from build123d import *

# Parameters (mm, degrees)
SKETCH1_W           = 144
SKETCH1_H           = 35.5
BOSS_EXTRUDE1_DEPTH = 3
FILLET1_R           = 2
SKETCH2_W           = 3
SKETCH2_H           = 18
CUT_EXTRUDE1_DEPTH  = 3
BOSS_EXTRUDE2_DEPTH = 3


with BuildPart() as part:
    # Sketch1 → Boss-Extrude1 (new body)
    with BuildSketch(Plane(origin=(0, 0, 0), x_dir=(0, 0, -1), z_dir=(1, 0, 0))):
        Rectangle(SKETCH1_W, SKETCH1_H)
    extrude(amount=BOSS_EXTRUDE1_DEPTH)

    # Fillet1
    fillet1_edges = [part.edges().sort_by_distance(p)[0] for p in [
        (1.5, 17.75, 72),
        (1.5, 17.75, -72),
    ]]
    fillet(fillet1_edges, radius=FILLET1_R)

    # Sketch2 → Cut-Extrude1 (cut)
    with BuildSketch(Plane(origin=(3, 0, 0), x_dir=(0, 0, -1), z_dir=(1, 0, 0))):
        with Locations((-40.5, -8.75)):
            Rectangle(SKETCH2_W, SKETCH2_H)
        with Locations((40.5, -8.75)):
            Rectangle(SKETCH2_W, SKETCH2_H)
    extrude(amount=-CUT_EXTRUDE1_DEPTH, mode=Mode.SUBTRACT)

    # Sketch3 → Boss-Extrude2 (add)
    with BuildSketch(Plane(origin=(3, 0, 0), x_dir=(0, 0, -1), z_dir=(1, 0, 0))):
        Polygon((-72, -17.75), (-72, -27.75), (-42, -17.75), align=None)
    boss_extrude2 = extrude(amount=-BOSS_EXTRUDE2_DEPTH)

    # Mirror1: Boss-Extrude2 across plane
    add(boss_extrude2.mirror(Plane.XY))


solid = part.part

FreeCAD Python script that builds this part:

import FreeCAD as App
import Part
import Sketcher

V = App.Vector


def edges_at(feature, points):
    """Names of the edges that pass closest to the given points."""
    edges = feature.Shape.Edges
    near = lambda p: min(range(len(edges)), key=lambda i: edges[i].distToShape(Part.Vertex(*p))[0])
    return sorted({f"Edge{near(p) + 1}" for p in points})

doc = App.newDocument("Part")
body = doc.addObject("PartDesign::Body", "Body")

sketch1 = body.newObject("Sketcher::SketchObject", "Sketch")
sketch1.AttachmentSupport = (doc.getObject("YZ_Plane"), [""])
sketch1.MapMode = "FlatFace"
sketch1.addGeometry([
    Part.LineSegment(V(18, 72, 0), V(-18, 72, 0)),
    Part.LineSegment(V(-18, 72, 0), V(-18, -72, 0)),
    Part.LineSegment(V(-18, -72, 0), V(18, -72, 0)),
    Part.LineSegment(V(18, -72, 0), V(18, 72, 0)),
], False)
sketch1.addConstraint([
    Sketcher.Constraint("Coincident", 0, 2, 1, 1),
    Sketcher.Constraint("Coincident", 1, 2, 2, 1),
    Sketcher.Constraint("Coincident", 2, 2, 3, 1),
    Sketcher.Constraint("Coincident", 3, 2, 0, 1),
    Sketcher.Constraint("Horizontal", 0),
    Sketcher.Constraint("Vertical", 1),
    Sketcher.Constraint("Horizontal", 2),
    Sketcher.Constraint("Vertical", 3),
    Sketcher.Constraint("Symmetric", 0, 2, 2, 2, -1, 1),
    Sketcher.Constraint("DistanceY", 1, 2, 1, 1, 144.0),
    Sketcher.Constraint("DistanceX", 0, 2, 0, 1, 35.5),
])
pad1 = body.newObject("PartDesign::Pad", "Pad")
pad1.Profile = sketch1
pad1.Length = 3
doc.recompute()

fillet = body.newObject("PartDesign::Fillet", "Fillet")
fillet.Base = (pad1, edges_at(pad1, [(1.5, 17.75, 72), (1.5, 17.75, -72)]))
fillet.Radius = 2

sketch2 = body.newObject("Sketcher::SketchObject", "Sketch001")
sketch2.AttachmentSupport = (doc.getObject("YZ_Plane"), [""])
sketch2.MapMode = "FlatFace"
sketch2.AttachmentOffset = App.Placement(V(0, 0, 3), App.Rotation())
sketch2.addGeometry([
    Part.LineSegment(V(0.2, 42, 0), V(-17.8, 42, 0)),
    Part.LineSegment(V(-17.8, 42, 0), V(-17.8, 39, 0)),
    Part.LineSegment(V(-17.8, 39, 0), V(0.2, 39, 0)),
    Part.LineSegment(V(0.2, 39, 0), V(0.2, 42, 0)),
    Part.LineSegment(V(0.2, -39, 0), V(-17.8, -39, 0)),
    Part.LineSegment(V(-17.8, -39, 0), V(-17.8, -42, 0)),
    Part.LineSegment(V(-17.8, -42, 0), V(0.2, -42, 0)),
    Part.LineSegment(V(0.2, -42, 0), V(0.2, -39, 0)),
], False)
sketch2.addConstraint([
    Sketcher.Constraint("Coincident", 0, 2, 1, 1),
    Sketcher.Constraint("Coincident", 1, 2, 2, 1),
    Sketcher.Constraint("Coincident", 2, 2, 3, 1),
    Sketcher.Constraint("Coincident", 3, 2, 0, 1),
    Sketcher.Constraint("Coincident", 4, 2, 5, 1),
    Sketcher.Constraint("Coincident", 5, 2, 6, 1),
    Sketcher.Constraint("Coincident", 6, 2, 7, 1),
    Sketcher.Constraint("Coincident", 7, 2, 4, 1),
    Sketcher.Constraint("Horizontal", 0),
    Sketcher.Constraint("Vertical", 1),
    Sketcher.Constraint("Horizontal", 2),
    Sketcher.Constraint("Vertical", 3),
    Sketcher.Constraint("Horizontal", 4),
    Sketcher.Constraint("Vertical", 5),
    Sketcher.Constraint("Horizontal", 6),
    Sketcher.Constraint("Vertical", 7),
    Sketcher.Constraint("Symmetric", 1, 2, 4, 2, -1),
    Sketcher.Constraint("Symmetric", 3, 2, 6, 2, -1),
    Sketcher.Constraint("DistanceX", 0, 2, 0, 1, 18.0),
    Sketcher.Constraint("DistanceY", 1, 2, 1, 1, 3.0),
    Sketcher.Constraint("DistanceY", -1, 1, 0, 2, 42.0),
    Sketcher.Constraint("DistanceX", 0, 2, -1, 1, 17.75),
])
pocket1 = body.newObject("PartDesign::Pocket", "Pocket")
pocket1.Profile = sketch2
pocket1.Length = 3

sketch3 = body.newObject("Sketcher::SketchObject", "Sketch002")
sketch3.AttachmentSupport = (doc.getObject("YZ_Plane"), [""])
sketch3.MapMode = "FlatFace"
sketch3.AttachmentOffset = App.Placement(V(0, 0, 3), App.Rotation())
sketch3.addGeometry([
    Part.LineSegment(V(-18, 72, 0), V(-28, 72, 0)),
    Part.LineSegment(V(-28, 72, 0), V(-18, 42, 0)),
    Part.LineSegment(V(-18, 42, 0), V(-18, 72, 0)),
], False)
sketch3.addConstraint([
    Sketcher.Constraint("Coincident", 0, 2, 1, 1),
    Sketcher.Constraint("Coincident", 1, 2, 2, 1),
    Sketcher.Constraint("Coincident", 2, 2, 0, 1),
    Sketcher.Constraint("Horizontal", 0),
    Sketcher.Constraint("Vertical", 2),
    Sketcher.Constraint("DistanceX", 0, 2, 0, 1, 10.0),
    Sketcher.Constraint("DistanceY", 2, 1, 2, 2, 30.0),
    Sketcher.Constraint("DistanceY", -1, 1, 0, 2, 72.0),
    Sketcher.Constraint("DistanceX", 0, 2, -1, 1, 27.75),
])
pad2 = body.newObject("PartDesign::Pad", "Pad001")
pad2.Profile = sketch3
pad2.Length = 3
pad2.Reversed = True
doc.recompute()

mirrored = body.newObject("PartDesign::Mirrored", "Mirrored")
mirrored.Originals = [pad2]
mirrored.MirrorPlane = (doc.getObject("XY_Plane"), [""])
body.Tip = mirrored

doc.recompute()
